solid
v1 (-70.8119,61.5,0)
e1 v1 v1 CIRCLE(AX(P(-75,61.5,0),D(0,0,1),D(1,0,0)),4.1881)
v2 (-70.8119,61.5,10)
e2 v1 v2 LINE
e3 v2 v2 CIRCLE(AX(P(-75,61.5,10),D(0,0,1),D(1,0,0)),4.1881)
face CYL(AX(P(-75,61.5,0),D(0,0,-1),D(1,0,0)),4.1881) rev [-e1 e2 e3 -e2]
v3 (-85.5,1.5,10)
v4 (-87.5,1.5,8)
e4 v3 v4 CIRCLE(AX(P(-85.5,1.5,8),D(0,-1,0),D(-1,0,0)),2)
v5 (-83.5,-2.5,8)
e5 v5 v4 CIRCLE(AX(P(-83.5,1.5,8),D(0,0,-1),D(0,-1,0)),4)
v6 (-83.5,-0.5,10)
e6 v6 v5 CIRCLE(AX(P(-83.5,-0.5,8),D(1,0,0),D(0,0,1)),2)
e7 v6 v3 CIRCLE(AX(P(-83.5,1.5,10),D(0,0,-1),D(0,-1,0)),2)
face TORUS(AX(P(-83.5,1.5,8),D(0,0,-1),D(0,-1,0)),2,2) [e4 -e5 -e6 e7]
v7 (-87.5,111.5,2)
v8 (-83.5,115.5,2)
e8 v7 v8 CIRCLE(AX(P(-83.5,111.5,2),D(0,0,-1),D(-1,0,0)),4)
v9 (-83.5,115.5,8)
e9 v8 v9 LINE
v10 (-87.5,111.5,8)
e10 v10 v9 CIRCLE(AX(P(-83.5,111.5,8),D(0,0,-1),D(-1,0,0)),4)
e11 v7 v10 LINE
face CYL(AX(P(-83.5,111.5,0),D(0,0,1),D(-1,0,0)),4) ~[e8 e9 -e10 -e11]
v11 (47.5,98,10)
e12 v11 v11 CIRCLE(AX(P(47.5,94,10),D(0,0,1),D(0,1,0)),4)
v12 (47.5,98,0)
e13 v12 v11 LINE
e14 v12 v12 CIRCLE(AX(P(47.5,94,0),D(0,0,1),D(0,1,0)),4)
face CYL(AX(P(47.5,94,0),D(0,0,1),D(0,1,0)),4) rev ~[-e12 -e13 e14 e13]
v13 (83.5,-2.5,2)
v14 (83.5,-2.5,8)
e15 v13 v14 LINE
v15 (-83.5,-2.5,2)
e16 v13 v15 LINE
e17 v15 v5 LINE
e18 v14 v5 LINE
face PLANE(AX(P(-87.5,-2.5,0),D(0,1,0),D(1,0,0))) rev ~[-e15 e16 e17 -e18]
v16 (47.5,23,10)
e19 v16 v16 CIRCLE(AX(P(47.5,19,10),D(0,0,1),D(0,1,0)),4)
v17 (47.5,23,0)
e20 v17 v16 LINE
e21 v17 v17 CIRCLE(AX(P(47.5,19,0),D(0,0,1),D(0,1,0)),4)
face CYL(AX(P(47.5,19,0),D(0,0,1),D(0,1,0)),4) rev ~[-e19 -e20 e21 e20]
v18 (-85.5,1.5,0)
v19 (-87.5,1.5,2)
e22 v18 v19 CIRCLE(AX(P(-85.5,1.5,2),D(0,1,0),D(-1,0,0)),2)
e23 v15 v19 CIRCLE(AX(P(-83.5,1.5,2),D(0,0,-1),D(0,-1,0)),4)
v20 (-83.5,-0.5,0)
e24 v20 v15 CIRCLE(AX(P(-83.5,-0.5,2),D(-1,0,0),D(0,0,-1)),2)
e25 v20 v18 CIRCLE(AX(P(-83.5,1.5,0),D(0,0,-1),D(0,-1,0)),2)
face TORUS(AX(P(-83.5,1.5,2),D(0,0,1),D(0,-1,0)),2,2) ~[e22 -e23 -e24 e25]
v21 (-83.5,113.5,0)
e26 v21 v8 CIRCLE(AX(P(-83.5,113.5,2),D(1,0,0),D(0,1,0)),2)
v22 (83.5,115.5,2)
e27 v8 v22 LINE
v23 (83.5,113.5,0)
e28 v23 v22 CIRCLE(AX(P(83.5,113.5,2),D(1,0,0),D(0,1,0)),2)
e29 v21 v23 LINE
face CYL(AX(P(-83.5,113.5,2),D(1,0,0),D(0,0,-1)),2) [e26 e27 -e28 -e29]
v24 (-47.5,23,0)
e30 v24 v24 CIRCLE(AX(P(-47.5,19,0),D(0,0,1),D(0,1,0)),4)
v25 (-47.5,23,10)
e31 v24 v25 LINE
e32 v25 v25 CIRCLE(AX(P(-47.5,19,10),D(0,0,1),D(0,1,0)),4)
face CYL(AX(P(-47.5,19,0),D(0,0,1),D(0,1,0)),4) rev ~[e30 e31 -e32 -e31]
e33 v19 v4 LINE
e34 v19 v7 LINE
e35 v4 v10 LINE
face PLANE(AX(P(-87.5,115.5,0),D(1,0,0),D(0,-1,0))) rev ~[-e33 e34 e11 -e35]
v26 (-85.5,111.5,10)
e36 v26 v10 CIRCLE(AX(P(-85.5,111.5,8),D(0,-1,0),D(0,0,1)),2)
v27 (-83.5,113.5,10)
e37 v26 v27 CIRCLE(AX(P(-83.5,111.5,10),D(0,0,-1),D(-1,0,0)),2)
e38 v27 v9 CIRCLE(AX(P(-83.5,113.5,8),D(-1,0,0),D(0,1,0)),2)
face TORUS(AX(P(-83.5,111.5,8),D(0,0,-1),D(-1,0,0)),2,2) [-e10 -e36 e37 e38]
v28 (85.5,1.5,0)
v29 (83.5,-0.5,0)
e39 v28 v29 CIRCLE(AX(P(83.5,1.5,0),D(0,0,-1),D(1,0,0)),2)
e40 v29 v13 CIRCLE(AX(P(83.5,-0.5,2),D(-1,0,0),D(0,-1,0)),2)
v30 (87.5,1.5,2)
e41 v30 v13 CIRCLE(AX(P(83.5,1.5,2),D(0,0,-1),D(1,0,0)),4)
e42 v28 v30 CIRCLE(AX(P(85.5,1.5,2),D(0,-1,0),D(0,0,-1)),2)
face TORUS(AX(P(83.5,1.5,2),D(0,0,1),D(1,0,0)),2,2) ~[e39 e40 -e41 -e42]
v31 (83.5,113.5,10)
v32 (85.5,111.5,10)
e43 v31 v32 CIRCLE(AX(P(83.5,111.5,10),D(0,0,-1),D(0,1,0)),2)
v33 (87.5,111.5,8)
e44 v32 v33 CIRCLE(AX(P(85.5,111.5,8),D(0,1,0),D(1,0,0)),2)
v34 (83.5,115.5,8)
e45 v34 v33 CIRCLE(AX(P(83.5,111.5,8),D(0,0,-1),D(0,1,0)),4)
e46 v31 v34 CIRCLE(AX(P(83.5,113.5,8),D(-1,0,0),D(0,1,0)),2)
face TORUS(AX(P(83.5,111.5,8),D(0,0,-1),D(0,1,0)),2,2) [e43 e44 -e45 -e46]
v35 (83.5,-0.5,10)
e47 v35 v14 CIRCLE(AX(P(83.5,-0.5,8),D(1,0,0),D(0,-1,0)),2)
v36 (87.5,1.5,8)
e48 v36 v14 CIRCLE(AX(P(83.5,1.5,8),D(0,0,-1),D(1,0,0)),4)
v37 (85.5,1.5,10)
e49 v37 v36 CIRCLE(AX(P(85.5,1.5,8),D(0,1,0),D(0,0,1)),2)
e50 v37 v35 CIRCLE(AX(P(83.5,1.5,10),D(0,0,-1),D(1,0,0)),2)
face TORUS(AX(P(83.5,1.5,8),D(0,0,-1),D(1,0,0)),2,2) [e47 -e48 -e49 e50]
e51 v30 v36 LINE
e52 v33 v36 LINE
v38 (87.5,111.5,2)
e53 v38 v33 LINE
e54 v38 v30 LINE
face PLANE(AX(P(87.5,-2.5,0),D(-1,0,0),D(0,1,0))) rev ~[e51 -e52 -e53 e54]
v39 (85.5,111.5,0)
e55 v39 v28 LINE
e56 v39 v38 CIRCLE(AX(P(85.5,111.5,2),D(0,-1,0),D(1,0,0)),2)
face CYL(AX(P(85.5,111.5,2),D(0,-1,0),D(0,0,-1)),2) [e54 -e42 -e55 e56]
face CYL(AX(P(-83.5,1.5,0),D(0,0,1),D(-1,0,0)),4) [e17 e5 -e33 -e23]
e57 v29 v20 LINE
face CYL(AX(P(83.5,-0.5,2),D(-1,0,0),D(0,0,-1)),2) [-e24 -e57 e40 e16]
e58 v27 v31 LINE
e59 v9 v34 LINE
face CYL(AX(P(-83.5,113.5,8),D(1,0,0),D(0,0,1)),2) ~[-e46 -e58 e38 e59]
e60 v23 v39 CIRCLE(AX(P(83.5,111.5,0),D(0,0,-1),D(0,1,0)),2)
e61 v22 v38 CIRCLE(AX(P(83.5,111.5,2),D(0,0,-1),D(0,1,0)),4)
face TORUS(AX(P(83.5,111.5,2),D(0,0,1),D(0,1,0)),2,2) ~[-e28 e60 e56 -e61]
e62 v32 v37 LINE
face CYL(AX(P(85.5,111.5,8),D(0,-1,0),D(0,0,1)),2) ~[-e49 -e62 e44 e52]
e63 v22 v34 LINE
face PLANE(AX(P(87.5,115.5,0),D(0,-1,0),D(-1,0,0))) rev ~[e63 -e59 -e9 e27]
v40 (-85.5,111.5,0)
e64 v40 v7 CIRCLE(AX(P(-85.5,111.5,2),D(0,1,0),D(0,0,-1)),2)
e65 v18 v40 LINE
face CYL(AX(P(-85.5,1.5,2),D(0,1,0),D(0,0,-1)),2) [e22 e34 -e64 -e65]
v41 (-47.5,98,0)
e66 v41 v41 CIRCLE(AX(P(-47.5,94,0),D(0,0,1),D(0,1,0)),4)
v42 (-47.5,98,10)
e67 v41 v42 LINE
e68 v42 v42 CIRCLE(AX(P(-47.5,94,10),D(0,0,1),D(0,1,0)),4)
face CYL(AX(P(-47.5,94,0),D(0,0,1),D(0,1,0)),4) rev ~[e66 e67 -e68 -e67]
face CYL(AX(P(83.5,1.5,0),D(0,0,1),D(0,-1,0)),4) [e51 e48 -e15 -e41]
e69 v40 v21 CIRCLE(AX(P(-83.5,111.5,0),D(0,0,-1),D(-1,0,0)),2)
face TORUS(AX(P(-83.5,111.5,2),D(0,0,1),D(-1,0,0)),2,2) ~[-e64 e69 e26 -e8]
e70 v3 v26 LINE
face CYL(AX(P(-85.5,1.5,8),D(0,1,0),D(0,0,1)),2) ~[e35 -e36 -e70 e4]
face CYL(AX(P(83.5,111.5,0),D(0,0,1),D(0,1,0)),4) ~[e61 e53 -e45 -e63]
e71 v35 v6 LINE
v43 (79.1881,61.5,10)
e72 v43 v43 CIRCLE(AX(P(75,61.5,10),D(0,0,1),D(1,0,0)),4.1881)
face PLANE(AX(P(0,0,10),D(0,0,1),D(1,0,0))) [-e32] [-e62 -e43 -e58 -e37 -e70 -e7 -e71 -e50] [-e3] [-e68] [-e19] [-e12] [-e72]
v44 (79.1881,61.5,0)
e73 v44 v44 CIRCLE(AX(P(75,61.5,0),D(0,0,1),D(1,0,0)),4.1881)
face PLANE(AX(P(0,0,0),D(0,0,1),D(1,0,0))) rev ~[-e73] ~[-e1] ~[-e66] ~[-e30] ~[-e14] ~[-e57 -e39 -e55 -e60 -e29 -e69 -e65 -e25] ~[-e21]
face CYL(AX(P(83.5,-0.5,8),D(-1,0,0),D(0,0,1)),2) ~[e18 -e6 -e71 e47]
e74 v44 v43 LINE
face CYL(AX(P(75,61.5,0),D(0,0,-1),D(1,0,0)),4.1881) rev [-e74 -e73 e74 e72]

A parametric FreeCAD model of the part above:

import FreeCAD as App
import Part
import Sketcher

V = App.Vector
Q = App.Units.Quantity


def edges_at(feature, points):
    """Names of the edges that pass closest to the given points."""
    edges = feature.Shape.Edges
    near = lambda p: min(range(len(edges)), key=lambda i: edges[i].distToShape(Part.Vertex(*p))[0])
    return sorted({f"Edge{near(p) + 1}" for p in points})


def add_polygon(sketch, points):
    """Adds a closed chain of lines whose ends are joined by coincident constraints."""
    first, n = sketch.GeometryCount, len(points)
    for a, b in zip(points, points[1:] + points[:1]):
        sketch.addGeometry(Part.LineSegment(App.Vector(*a, 0), App.Vector(*b, 0)), False)
    for i in range(n):
        sketch.addConstraint(Sketcher.Constraint("Coincident", first + i, 2, first + (i + 1) % n, 1))

doc = App.newDocument("Part")
body = doc.addObject("PartDesign::Body", "Body")

# Sketch on XY plane
sketch1 = body.newObject("Sketcher::SketchObject", "Sketch")
sketch1.AttachmentSupport = (doc.getObject("XY_Plane"), [""])
sketch1.MapMode = "FlatFace"
add_polygon(sketch1, [(-87.5, 115.5), (-87.5, -2.5), (87.5, -2.5), (87.5, 115.5)])  # lines 0-3
sketch1.addGeometry(Part.Circle(V(-75, 61.5, 0), V(0, 0, 1), 4.2), False)  # 4
sketch1.addGeometry(Part.Circle(V(75, 61.5, 0), V(0, 0, 1), 4.2), False)  # 5
sketch1.addConstraint(Sketcher.Constraint("Vertical", 0))
sketch1.addConstraint(Sketcher.Constraint("Horizontal", 1))
sketch1.addConstraint(Sketcher.Constraint("Vertical", 2))
sketch1.addConstraint(Sketcher.Constraint("Horizontal", 3))
sketch1.addConstraint(Sketcher.Constraint("Equal", 4, 5))
sketch1.addConstraint(Sketcher.Constraint("Symmetric", 4, 3, 5, 3, -2))
sketch1.addConstraint(Sketcher.Constraint("DistanceX", 1, 1, 1, 2, Q("175 mm")))
sketch1.addConstraint(Sketcher.Constraint("DistanceY", 0, 2, 0, 1, Q("118 mm")))
sketch1.addConstraint(Sketcher.Constraint("DistanceX", 4, 3, -1, 1, Q("75 mm")))
sketch1.addConstraint(Sketcher.Constraint("DistanceY", 0, 2, 4, 3, Q("64 mm")))
sketch1.addConstraint(Sketcher.Constraint("Diameter", 4, Q("8.3762 mm")))
sketch1.addConstraint(Sketcher.Constraint("DistanceY", -1, 1, 4, 3, Q("61.5 mm")))
sketch1.addConstraint(Sketcher.Constraint("DistanceX", 0, 2, -1, 1, Q("87.5 mm")))
pad1 = body.newObject("PartDesign::Pad", "Pad")
pad1.Profile = sketch1
pad1.Length = 10

# Sketch on XY plane
sketch2 = body.newObject("Sketcher::SketchObject", "Sketch001")
sketch2.AttachmentSupport = (doc.getObject("XY_Plane"), [""])
sketch2.MapMode = "FlatFace"
sketch2.addGeometry(Part.Circle(V(47.5, 94, 0), V(0, 0, 1), 4), False)
sketch2.addGeometry(Part.Circle(V(47.5, 19, 0), V(0, 0, 1), 4), False)
sketch2.addGeometry(Part.Circle(V(-47.5, 19, 0), V(0, 0, 1), 4), False)
sketch2.addGeometry(Part.Circle(V(-47.5, 94, 0), V(0, 0, 1), 4), False)
sketch2.addConstraint(Sketcher.Constraint("Equal", 0, 1))
sketch2.addConstraint(Sketcher.Constraint("Equal", 1, 2))
sketch2.addConstraint(Sketcher.Constraint("Equal", 2, 3))
sketch2.addConstraint(Sketcher.Constraint("Symmetric", 1, 3, 2, 3, -2))
sketch2.addConstraint(Sketcher.Constraint("Symmetric", 0, 3, 3, 3, -2))
sketch2.addConstraint(Sketcher.Constraint("Vertical", 0, 3, 1, 3))
sketch2.addConstraint(Sketcher.Constraint("Diameter", 0, Q("8 mm")))
sketch2.addConstraint(Sketcher.Constraint("DistanceY", -1, 1, 0, 3, Q("94 mm")))
sketch2.addConstraint(Sketcher.Constraint("DistanceY", -1, 1, 1, 3, Q("19 mm")))
sketch2.addConstraint(Sketcher.Constraint("DistanceX", 2, 3, 1, 3, Q("95 mm")))
doc.recompute()
hole = body.newObject("PartDesign::Hole", "Hole")
hole.Profile = sketch2
hole.ThreadType = "None"
hole.Diameter = 8
hole.DepthType = "Dimension"
hole.Depth = 15
hole.DrillPoint = "Flat"
hole.Reversed = True
doc.recompute()

fillet = body.newObject("PartDesign::Fillet", "Fillet")
fillet.Base = (hole, edges_at(hole, [
    (87.5, 115.5, 5),
    (87.5, -2.5, 5),
    (-87.5, -2.5, 5),
    (-87.5, 115.5, 5),
]))
fillet.Radius = 4
doc.recompute()

fillet2 = body.newObject("PartDesign::Fillet", "Fillet001")
fillet2.Base = (fillet, edges_at(fillet, [
    (86.328, 114.328, 0),
    (0, 115.5, 0),
    (-86.328, 114.328, 0),
    (-87.5, 56.5, 0),
    (-86.328, -1.328, 0),
    (0, -2.5, 0),
    (86.328, -1.328, 0),
    (87.5, 56.5, 0),
    (86.328, 114.328, 10),
    (0, 115.5, 10),
    (-86.328, 114.328, 10),
    (-87.5, 56.5, 10),
    (-86.328, -1.328, 10),
    (0, -2.5, 10),
    (86.328, -1.328, 10),
    (87.5, 56.5, 10),
]))
fillet2.Radius = 2

doc.recompute()
